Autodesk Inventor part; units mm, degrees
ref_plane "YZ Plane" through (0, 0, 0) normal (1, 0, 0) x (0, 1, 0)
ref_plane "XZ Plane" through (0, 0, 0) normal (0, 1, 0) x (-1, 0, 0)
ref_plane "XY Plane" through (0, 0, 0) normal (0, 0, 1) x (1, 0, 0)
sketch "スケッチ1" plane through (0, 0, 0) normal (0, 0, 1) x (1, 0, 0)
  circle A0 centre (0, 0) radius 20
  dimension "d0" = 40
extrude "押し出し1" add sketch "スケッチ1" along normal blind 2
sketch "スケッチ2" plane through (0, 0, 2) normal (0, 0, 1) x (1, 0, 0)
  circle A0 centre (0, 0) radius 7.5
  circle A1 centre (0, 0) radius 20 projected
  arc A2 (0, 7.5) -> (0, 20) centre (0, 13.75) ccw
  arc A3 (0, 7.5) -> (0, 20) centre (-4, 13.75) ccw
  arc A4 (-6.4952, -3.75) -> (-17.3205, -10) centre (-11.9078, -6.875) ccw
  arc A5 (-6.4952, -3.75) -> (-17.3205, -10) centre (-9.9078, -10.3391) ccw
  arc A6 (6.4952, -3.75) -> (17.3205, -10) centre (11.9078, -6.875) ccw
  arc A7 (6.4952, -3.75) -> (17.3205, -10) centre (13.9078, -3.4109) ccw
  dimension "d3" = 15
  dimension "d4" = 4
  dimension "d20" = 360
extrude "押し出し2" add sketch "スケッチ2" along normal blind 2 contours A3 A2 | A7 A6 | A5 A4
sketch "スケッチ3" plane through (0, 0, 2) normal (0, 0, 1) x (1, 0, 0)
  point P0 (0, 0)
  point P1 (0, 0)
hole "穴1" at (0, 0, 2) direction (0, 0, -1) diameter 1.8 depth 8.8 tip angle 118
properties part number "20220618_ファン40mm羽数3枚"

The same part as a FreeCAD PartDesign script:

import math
import FreeCAD as App
import Part
import Sketcher

V = App.Vector
Q = App.Units.Quantity

doc = App.newDocument("Part")
body = doc.addObject("PartDesign::Body", "Body")

# Sketch on XY plane
sketch1 = body.newObject("Sketcher::SketchObject", "Sketch")
sketch1.AttachmentSupport = (doc.getObject("XY_Plane"), [""])
sketch1.MapMode = "FlatFace"
sketch1.addGeometry(Part.Circle(V(0, 0, 0), V(0, 0, 1), 20), False)
sketch1.addConstraint(Sketcher.Constraint("Coincident", 0, 3, -1, 1))
sketch1.addConstraint(Sketcher.Constraint("Diameter", 0, Q("40 mm")))
pad1 = body.newObject("PartDesign::Pad", "Pad")
pad1.Profile = sketch1
pad1.Length = 2

# Sketch on XY plane
sketch2 = body.newObject("Sketcher::SketchObject", "Sketch001")
sketch2.AttachmentSupport = (doc.getObject("XY_Plane"), [""])
sketch2.MapMode = "FlatFace"
sketch2.AttachmentOffset = App.Placement(V(0, 0, 2), App.Rotation())
sketch2.addGeometry(Part.ArcOfCircle(Part.Circle(V(-4, 13.75, 0), V(0, 0, 1), 7.420411), math.radians(-57.380757), math.radians(57.380757)), False)
sketch2.addGeometry(Part.ArcOfCircle(Part.Circle(V(0, 13.75, 0), V(0, 0, 1), 6.25), math.radians(-90), math.radians(90)), False)
sketch2.addGeometry(Part.ArcOfCircle(Part.Circle(V(13.9078, -3.4109, 0), V(0, 0, 1), 7.420352), math.radians(-177.380749), math.radians(-62.618955)), False)
sketch2.addGeometry(Part.ArcOfCircle(Part.Circle(V(11.9078, -6.875, 0), V(0, 0, 1), 6.249949), math.radians(149.999731), math.radians(330.000189)), False)
sketch2.addGeometry(Part.ArcOfCircle(Part.Circle(V(-9.9078, -10.3391, 0), V(0, 0, 1), 7.420383), math.radians(62.61964), math.radians(177.380784)), False)
sketch2.addGeometry(Part.ArcOfCircle(Part.Circle(V(-11.9078, -6.875, 0), V(0, 0, 1), 6.249949), math.radians(30.000269), math.radians(209.999811)), False)
sketch2.addConstraint(Sketcher.Constraint("Coincident", 0, 1, 1, 1))
sketch2.addConstraint(Sketcher.Constraint("Coincident", 1, 2, 0, 2))
sketch2.addConstraint(Sketcher.Constraint("Coincident", 2, 1, 3, 1))
sketch2.addConstraint(Sketcher.Constraint("Coincident", 3, 2, 2, 2))
sketch2.addConstraint(Sketcher.Constraint("Coincident", 4, 1, 5, 1))
sketch2.addConstraint(Sketcher.Constraint("Coincident", 5, 2, 4, 2))
sketch2.addConstraint(Sketcher.Constraint("Equal", 0, 2))
sketch2.addConstraint(Sketcher.Constraint("Equal", 1, 3))
sketch2.addConstraint(Sketcher.Constraint("Equal", 2, 4))
sketch2.addConstraint(Sketcher.Constraint("Equal", 3, 5))
sketch2.addConstraint(Sketcher.Constraint("Symmetric", 3, 3, 5, 3, -2))
sketch2.addConstraint(Sketcher.Constraint("PointOnObject", 1, 3, -2))
sketch2.addConstraint(Sketcher.Constraint("PointOnObject", 0, 1, -2))
sketch2.addConstraint(Sketcher.Constraint("PointOnObject", 1, 2, -2))
sketch2.addConstraint(Sketcher.Constraint("Horizontal", 2, 1, 4, 1))
sketch2.addConstraint(Sketcher.Constraint("Horizontal", 3, 2, 5, 2))
sketch2.addConstraint(Sketcher.Constraint("DistanceX", 0, 3, -1, 1, Q("4 mm")))
sketch2.addConstraint(Sketcher.Constraint("Radius", 1, Q("6.25 mm")))
sketch2.addConstraint(Sketcher.Constraint("DistanceY", -1, 1, 1, 2, Q("20 mm")))
sketch2.addConstraint(Sketcher.Constraint("DistanceY", 3, 2, -1, 1, Q("10 mm")))
sketch2.addConstraint(Sketcher.Constraint("DistanceX", 3, 3, 2, 3, Q("2 mm")))
sketch2.addConstraint(Sketcher.Constraint("DistanceX", 5, 3, 4, 3, Q("2 mm")))
sketch2.addConstraint(Sketcher.Constraint("DistanceX", 4, 3, 2, 1, Q("16.403 mm")))
pad2 = body.newObject("PartDesign::Pad", "Pad001")
pad2.Profile = sketch2
pad2.Length = 2

# Sketch on XY plane
sketch3 = body.newObject("Sketcher::SketchObject", "Sketch002")
sketch3.AttachmentSupport = (doc.getObject("XY_Plane"), [""])
sketch3.MapMode = "FlatFace"
sketch3.AttachmentOffset = App.Placement(V(0, 0, 2), App.Rotation())
sketch3.addGeometry(Part.Circle(V(0, 0, 0), V(0, 0, 1), 0.9), False)
sketch3.addConstraint(Sketcher.Constraint("Coincident", 0, 3, -1, 1))
sketch3.addConstraint(Sketcher.Constraint("Diameter", 0, Q("1.8 mm")))
doc.recompute()
hole = body.newObject("PartDesign::Hole", "Hole")
hole.Profile = sketch3
hole.ThreadType = "None"
hole.Diameter = 1.8
hole.DepthType = "Dimension"
hole.Depth = 8.8
hole.DrillPoint = "Angled"
hole.DrillPointAngle = 118

doc.recompute()
